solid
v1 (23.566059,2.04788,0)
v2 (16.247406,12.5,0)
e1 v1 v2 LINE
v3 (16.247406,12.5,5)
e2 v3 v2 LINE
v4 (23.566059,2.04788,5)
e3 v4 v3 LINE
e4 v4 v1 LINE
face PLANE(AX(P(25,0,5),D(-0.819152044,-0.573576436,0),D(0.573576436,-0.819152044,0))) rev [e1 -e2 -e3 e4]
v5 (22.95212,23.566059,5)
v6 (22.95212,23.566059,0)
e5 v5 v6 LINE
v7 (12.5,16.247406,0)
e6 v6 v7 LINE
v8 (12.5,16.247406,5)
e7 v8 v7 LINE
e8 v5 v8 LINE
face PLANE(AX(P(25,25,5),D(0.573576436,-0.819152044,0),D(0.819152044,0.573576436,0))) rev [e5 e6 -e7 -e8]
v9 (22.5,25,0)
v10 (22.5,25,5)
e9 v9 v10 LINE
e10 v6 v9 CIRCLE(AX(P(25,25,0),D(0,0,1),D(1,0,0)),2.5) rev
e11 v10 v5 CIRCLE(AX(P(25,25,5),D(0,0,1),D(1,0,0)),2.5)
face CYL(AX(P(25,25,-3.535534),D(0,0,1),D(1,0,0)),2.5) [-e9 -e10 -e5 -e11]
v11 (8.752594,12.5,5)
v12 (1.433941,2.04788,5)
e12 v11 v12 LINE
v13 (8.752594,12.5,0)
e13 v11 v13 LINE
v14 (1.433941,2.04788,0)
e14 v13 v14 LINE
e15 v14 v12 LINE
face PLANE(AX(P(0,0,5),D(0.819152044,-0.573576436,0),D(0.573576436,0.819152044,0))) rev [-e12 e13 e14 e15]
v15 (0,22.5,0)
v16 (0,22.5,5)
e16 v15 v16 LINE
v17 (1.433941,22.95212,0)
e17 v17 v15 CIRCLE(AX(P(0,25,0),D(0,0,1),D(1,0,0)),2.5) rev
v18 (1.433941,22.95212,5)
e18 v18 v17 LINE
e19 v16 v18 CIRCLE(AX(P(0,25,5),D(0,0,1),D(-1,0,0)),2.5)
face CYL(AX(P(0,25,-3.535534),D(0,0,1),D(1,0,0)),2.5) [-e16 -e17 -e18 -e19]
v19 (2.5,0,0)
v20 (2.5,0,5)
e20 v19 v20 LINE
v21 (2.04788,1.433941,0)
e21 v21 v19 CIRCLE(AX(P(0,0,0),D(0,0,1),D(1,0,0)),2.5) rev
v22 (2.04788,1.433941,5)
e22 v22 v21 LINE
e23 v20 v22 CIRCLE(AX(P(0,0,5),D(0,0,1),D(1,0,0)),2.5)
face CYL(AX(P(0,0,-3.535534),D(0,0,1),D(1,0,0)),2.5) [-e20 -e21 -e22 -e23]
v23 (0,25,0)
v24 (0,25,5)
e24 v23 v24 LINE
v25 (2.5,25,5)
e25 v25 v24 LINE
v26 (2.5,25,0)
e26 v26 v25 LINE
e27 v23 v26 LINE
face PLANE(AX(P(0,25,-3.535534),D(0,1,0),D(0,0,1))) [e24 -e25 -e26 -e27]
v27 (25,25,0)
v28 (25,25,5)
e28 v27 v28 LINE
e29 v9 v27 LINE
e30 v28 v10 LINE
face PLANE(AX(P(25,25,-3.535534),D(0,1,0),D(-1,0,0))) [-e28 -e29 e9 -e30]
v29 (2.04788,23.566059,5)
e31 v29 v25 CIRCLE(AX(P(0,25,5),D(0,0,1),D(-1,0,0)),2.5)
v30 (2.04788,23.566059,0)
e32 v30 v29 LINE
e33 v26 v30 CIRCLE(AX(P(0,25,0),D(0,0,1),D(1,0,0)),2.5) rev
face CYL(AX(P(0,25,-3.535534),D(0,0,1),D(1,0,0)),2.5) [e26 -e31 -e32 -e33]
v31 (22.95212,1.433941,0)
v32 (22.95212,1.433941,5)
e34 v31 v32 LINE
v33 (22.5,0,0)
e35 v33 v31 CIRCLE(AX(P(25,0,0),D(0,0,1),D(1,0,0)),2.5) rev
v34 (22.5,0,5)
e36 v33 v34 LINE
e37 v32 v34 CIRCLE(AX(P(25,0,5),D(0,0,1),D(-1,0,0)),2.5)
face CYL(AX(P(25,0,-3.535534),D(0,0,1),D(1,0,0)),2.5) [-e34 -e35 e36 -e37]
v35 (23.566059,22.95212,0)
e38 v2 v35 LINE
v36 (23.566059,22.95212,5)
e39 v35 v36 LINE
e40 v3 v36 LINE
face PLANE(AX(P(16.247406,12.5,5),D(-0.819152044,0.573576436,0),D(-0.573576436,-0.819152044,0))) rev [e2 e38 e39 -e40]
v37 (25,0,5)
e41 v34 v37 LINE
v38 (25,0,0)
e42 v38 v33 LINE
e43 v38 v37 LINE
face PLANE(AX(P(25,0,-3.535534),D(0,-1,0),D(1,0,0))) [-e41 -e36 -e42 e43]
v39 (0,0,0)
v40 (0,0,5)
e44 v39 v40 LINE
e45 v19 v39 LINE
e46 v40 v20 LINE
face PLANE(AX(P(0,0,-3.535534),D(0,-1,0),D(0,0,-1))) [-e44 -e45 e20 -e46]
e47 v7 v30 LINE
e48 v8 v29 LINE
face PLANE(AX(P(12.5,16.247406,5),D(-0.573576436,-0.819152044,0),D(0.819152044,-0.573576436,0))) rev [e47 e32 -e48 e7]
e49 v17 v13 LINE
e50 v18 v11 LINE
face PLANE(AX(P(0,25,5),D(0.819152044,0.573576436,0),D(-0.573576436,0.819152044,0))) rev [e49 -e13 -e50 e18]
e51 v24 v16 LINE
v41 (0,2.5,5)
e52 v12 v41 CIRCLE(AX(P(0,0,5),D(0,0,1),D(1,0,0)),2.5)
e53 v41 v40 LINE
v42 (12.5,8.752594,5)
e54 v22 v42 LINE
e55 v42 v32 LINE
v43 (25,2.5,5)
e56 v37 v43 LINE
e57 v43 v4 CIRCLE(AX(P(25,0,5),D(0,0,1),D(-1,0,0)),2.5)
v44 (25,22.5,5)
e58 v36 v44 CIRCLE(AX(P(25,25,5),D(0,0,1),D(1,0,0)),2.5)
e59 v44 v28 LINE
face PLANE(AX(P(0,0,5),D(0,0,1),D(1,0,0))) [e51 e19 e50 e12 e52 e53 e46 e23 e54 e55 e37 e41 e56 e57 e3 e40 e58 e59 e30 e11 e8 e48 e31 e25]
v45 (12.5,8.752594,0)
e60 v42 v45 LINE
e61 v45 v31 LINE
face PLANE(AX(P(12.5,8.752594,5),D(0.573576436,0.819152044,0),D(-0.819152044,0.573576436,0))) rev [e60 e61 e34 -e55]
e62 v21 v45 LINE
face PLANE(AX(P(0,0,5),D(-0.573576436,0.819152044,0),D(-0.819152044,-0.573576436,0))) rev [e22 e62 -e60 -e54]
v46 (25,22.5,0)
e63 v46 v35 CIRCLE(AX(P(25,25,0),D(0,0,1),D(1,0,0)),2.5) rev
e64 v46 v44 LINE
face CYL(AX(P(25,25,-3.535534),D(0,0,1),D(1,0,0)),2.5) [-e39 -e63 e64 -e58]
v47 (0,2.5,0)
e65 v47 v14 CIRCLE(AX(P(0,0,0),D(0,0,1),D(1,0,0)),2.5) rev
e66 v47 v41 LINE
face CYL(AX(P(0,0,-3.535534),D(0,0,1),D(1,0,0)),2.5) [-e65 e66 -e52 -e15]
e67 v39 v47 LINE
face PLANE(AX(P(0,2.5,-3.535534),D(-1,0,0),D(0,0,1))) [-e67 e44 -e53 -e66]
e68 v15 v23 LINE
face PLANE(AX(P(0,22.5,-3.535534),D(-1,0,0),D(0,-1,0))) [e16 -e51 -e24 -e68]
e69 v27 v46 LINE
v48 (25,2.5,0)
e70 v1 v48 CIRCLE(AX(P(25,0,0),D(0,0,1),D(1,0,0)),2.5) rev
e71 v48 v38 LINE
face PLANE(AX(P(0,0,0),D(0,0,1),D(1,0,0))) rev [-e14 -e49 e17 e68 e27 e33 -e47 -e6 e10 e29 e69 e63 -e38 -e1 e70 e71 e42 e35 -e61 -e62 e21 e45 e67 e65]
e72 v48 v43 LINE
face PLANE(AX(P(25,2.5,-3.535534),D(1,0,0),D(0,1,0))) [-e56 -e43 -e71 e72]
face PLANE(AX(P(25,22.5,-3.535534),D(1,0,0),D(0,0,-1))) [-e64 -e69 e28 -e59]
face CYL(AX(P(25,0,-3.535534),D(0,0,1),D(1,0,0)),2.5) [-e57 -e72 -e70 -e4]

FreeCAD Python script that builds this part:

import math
import FreeCAD as App
import Part
import Sketcher
from FreeCAD import Vector
Q = App.Units.Quantity

doc = App.newDocument("Part")
body = doc.addObject("PartDesign::Body", "Body")

sketch1 = body.newObject("Sketcher::SketchObject", "Sketch")
sketch1.AttachmentSupport = (doc.getObject("XY_Plane"), [""])
sketch1.MapMode = "FlatFace"
sketch1.addGeometry([
    Part.LineSegment(Vector(8.752594, 12.5, 0), Vector(0, 0, 0)),
    Part.LineSegment(Vector(0, 0, 0), Vector(12.5, 8.752594, 0)),
    Part.LineSegment(Vector(12.5, 8.752594, 0), Vector(25, 0, 0)),
    Part.LineSegment(Vector(25, 0, 0), Vector(16.247406, 12.5, 0)),
    Part.LineSegment(Vector(16.247406, 12.5, 0), Vector(25, 25, 0)),
    Part.LineSegment(Vector(25, 25, 0), Vector(12.5, 16.247406, 0)),
    Part.LineSegment(Vector(12.5, 16.247406, 0), Vector(0, 25, 0)),
    Part.LineSegment(Vector(0, 25, 0), Vector(8.752594, 12.5, 0)),
], False)
sketch1.addConstraint([
    Sketcher.Constraint("Coincident", 0, 2, 1, 1),
    Sketcher.Constraint("Coincident", 1, 2, 2, 1),
    Sketcher.Constraint("Coincident", 2, 2, 3, 1),
    Sketcher.Constraint("Coincident", 3, 2, 4, 1),
    Sketcher.Constraint("Coincident", 4, 2, 5, 1),
    Sketcher.Constraint("Coincident", 5, 2, 6, 1),
    Sketcher.Constraint("Coincident", 6, 2, 7, 1),
    Sketcher.Constraint("Coincident", 7, 2, 0, 1),
    Sketcher.Constraint("Coincident", 0, 2, -1, 1),
    Sketcher.Constraint("PointOnObject", 2, 2, -1),
    Sketcher.Constraint("PointOnObject", 6, 2, -2),
    Sketcher.Constraint("Perpendicular", 0, 2),
    Sketcher.Constraint("Perpendicular", 1, 3),
    Sketcher.Constraint("Perpendicular", 2, 4),
    Sketcher.Constraint("Perpendicular", 3, 5),
    Sketcher.Constraint("Perpendicular", 4, 6),
    Sketcher.Constraint("Perpendicular", 5, 7),
    Sketcher.Constraint("Horizontal", 4, 2, 6, 2),
    Sketcher.Constraint("Horizontal", 3, 2, 7, 2),
    Sketcher.Constraint("Vertical", 2, 2, 4, 2),
    Sketcher.Constraint("Equal", 0, 1),
    Sketcher.Constraint("Angle", 0, Q("-125 deg")),
    Sketcher.Constraint("DistanceX", -1, 1, 2, 2, Q("25 mm")),
])
pad1 = body.newObject("PartDesign::Pad", "Pad")
pad1.Profile = sketch1
pad1.Length = 5

sketch2 = body.newObject("Sketcher::SketchObject", "Sketch001")
sketch2.AttachmentSupport = (doc.getObject("XY_Plane"), [""])
sketch2.MapMode = "FlatFace"
sketch2.AttachmentOffset = App.Placement(Vector(0, 0, 5), App.Rotation())
sketch2.addGeometry([
    Part.LineSegment(Vector(0, 25, 0), Vector(0, 22.5, 0)),
    Part.ArcOfCircle(Part.Circle(Vector(0, 25, 0), Vector(0, 0, 1), 2.5), math.radians(-90), math.radians(0)),
    Part.LineSegment(Vector(2.5, 25, 0), Vector(0, 25, 0)),
    Part.LineSegment(Vector(25, 22.5, 0), Vector(25, 25, 0)),
    Part.LineSegment(Vector(25, 25, 0), Vector(22.5, 25, 0)),
    Part.ArcOfCircle(Part.Circle(Vector(25, 25, 0), Vector(0, 0, 1), 2.5), math.radians(180), math.radians(270)),
    Part.LineSegment(Vector(22.5, 0, 0), Vector(25, 0, 0)),
    Part.LineSegment(Vector(25, 0, 0), Vector(25, 2.5, 0)),
    Part.ArcOfCircle(Part.Circle(Vector(25, 0, 0), Vector(0, 0, 1), 2.5), math.radians(90), math.radians(180)),
    Part.LineSegment(Vector(0, 2.5, 0), Vector(0, 0, 0)),
    Part.LineSegment(Vector(0, 0, 0), Vector(2.5, 0, 0)),
    Part.ArcOfCircle(Part.Circle(Vector(0, 0, 0), Vector(0, 0, 1), 2.5), math.radians(0), math.radians(90)),
], False)
sketch2.addConstraint([
    Sketcher.Constraint("Coincident", 0, 2, 1, 1),
    Sketcher.Constraint("Coincident", 1, 2, 2, 1),
    Sketcher.Constraint("Coincident", 2, 2, 0, 1),
    Sketcher.Constraint("Coincident", 3, 2, 4, 1),
    Sketcher.Constraint("Coincident", 4, 2, 5, 1),
    Sketcher.Constraint("Coincident", 5, 2, 3, 1),
    Sketcher.Constraint("Coincident", 6, 2, 7, 1),
    Sketcher.Constraint("Coincident", 7, 2, 8, 1),
    Sketcher.Constraint("Coincident", 8, 2, 6, 1),
    Sketcher.Constraint("Coincident", 9, 2, 10, 1),
    Sketcher.Constraint("Coincident", 10, 2, 11, 1),
    Sketcher.Constraint("Coincident", 11, 2, 9, 1),
    Sketcher.Constraint("Vertical", 0),
    Sketcher.Constraint("Horizontal", 2),
    Sketcher.Constraint("Vertical", 3),
    Sketcher.Constraint("Horizontal", 4),
    Sketcher.Constraint("Horizontal", 6),
    Sketcher.Constraint("Vertical", 7),
    Sketcher.Constraint("Vertical", 9),
    Sketcher.Constraint("Horizontal", 10),
    Sketcher.Constraint("Coincident", 11, 3, -1, 1),
    Sketcher.Constraint("Coincident", 9, 2, -1, 1),
    Sketcher.Constraint("Coincident", 2, 2, 1, 3),
    Sketcher.Constraint("Coincident", 3, 2, 5, 3),
    Sketcher.Constraint("Coincident", 6, 2, 8, 3),
    Sketcher.Constraint("Equal", 1, 5),
    Sketcher.Constraint("Equal", 5, 8),
    Sketcher.Constraint("Equal", 8, 11),
    Sketcher.Constraint("PointOnObject", 1, 3, -2),
    Sketcher.Constraint("PointOnObject", 8, 3, -1),
    Sketcher.Constraint("Horizontal", 1, 3, 5, 3),
    Sketcher.Constraint("Vertical", 5, 3, 8, 3),
    Sketcher.Constraint("Radius", 1, Q("2.5 mm")),
    Sketcher.Constraint("DistanceY", -1, 1, 1, 3, Q("25 mm")),
    Sketcher.Constraint("DistanceX", -1, 1, 5, 3, Q("25 mm")),
])
pad2 = body.newObject("PartDesign::Pad", "Pad001")
pad2.Profile = sketch2
pad2.Length = 5
pad2.Reversed = True

doc.recompute()
